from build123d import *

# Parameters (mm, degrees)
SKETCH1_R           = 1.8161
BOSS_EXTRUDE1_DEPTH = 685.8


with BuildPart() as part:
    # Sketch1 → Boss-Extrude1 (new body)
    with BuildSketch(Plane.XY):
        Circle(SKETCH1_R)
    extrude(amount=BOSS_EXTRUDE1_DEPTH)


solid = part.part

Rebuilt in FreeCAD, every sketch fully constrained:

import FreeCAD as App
import Part
import Sketcher
from FreeCAD import Vector
Q = App.Units.Quantity

doc = App.newDocument("Part")
params = doc.addObject("Spreadsheet::Sheet", "Params")
for row, (alias, value) in enumerate([
    ("sketch1_diameter", "0.143 in"),
    ("pad1_length", "27 in"),
], start=1):
    params.set(f"A{row}", alias)
    params.set(f"B{row}", "=" + value)
    params.setAlias(f"B{row}", alias)

body = doc.addObject("PartDesign::Body", "Body")

sketch1 = body.newObject("Sketcher::SketchObject", "Sketch")
sketch1.AttachmentSupport = (doc.getObject("XY_Plane"), [""])
sketch1.MapMode = "FlatFace"
sketch1.addGeometry(Part.Circle(Vector(0, 0, 0), Vector(0, 0, 1), 1.8), False)
sketch1.addConstraint([
    Sketcher.Constraint("Coincident", 0, 3, -1, 1),
    Sketcher.Constraint("Diameter", 0, Q("0.143 in")),
])
sketch1.setExpression("Constraints[1]", "Params.sketch1_diameter")
pad1 = body.newObject("PartDesign::Pad", "Pad")
pad1.Profile = sketch1
pad1.setExpression("Length", "Params.pad1_length")

doc.recompute()
